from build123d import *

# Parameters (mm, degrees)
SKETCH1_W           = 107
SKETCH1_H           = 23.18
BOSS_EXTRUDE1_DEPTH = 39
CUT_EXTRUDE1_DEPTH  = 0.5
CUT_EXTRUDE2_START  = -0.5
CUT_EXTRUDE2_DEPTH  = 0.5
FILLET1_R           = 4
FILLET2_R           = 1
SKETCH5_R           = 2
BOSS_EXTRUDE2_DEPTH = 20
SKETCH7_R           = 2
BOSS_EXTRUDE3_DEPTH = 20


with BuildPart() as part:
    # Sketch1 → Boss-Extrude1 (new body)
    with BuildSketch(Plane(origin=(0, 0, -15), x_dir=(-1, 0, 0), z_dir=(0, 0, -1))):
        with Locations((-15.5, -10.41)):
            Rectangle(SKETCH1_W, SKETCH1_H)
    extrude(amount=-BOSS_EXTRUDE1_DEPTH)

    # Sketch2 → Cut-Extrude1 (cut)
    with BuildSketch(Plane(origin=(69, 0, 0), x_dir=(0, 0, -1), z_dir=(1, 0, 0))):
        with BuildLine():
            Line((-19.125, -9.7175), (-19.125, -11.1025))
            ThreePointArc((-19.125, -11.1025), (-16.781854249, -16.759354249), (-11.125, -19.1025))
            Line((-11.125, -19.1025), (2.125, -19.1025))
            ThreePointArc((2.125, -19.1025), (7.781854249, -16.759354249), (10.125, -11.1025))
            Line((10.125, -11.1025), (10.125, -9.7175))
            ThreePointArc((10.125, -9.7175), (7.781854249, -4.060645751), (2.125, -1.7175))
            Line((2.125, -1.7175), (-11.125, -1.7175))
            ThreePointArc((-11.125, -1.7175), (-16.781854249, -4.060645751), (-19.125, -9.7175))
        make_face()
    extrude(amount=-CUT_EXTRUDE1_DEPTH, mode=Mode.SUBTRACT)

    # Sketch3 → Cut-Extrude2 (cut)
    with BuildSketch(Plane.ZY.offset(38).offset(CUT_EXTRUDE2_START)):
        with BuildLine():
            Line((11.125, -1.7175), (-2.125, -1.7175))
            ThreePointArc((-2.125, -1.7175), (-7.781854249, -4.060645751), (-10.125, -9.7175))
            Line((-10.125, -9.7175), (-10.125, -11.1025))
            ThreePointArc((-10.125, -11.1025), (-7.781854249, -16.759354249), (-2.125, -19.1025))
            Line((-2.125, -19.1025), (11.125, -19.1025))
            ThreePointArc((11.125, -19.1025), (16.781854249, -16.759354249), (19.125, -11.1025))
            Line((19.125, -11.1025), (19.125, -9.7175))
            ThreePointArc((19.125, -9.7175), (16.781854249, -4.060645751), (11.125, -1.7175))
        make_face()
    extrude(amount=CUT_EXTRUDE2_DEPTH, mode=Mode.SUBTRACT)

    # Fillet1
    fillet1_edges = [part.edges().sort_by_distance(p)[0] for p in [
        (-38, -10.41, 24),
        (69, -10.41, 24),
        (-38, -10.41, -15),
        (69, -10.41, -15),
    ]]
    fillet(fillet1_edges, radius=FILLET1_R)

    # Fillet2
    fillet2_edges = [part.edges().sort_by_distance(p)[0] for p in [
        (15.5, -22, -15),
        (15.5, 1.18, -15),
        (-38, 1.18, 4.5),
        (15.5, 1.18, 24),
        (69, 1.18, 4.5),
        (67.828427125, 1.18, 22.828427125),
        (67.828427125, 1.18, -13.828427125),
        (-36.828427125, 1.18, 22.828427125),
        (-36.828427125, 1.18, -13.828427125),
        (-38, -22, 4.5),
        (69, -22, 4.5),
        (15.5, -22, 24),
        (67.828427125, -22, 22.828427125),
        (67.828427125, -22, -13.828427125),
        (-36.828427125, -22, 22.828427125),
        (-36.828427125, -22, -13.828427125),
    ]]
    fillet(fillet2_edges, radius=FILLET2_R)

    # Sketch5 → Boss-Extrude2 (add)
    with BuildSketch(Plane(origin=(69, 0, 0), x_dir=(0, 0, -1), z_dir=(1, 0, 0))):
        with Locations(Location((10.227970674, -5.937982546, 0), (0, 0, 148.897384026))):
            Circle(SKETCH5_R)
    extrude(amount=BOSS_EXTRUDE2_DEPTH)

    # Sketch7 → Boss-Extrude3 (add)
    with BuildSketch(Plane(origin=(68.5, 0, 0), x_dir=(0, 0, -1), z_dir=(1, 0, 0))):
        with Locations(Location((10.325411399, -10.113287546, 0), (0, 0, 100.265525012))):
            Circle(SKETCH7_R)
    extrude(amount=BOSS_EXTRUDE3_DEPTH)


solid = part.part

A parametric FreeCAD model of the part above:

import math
import FreeCAD as App
import Part
import Sketcher

V = App.Vector


def edges_at(feature, points):
    """Names of the edges that pass closest to the given points."""
    edges = feature.Shape.Edges
    near = lambda p: min(range(len(edges)), key=lambda i: edges[i].distToShape(Part.Vertex(*p))[0])
    return sorted({f"Edge{near(p) + 1}" for p in points})


def add_polygon(sketch, points):
    """Adds a closed chain of lines whose ends are joined by coincident constraints."""
    first, n = sketch.GeometryCount, len(points)
    for a, b in zip(points, points[1:] + points[:1]):
        sketch.addGeometry(Part.LineSegment(App.Vector(*a, 0), App.Vector(*b, 0)), False)
    for i in range(n):
        sketch.addConstraint(Sketcher.Constraint("Coincident", first + i, 2, first + (i + 1) % n, 1))

doc = App.newDocument("Part")
body = doc.addObject("PartDesign::Body", "Body")

sketch1 = body.newObject("Sketcher::SketchObject", "Sketch")
sketch1.AttachmentSupport = (doc.getObject("XY_Plane"), [""])
sketch1.MapMode = "FlatFace"
sketch1.AttachmentOffset = App.Placement(V(0, 0, -15), App.Rotation())
add_polygon(sketch1, [(69, 1), (69, -22), (-38, -22), (-38, 1)])
sketch1.addConstraint([
    Sketcher.Constraint("Vertical", 0),
    Sketcher.Constraint("Horizontal", 1),
    Sketcher.Constraint("Vertical", 2),
    Sketcher.Constraint("Horizontal", 3),
    Sketcher.Constraint("DistanceX", 1, 2, 1, 1, 107.0),
    Sketcher.Constraint("DistanceX", -1, 1, 0, 2, 69.0),
    Sketcher.Constraint("DistanceY", 0, 2, -1, 1, 22.0),
    Sketcher.Constraint("DistanceY", 0, 2, 0, 1, 23.18),
])
pad1 = body.newObject("PartDesign::Pad", "Pad")
pad1.Profile = sketch1
pad1.Length = 39

sketch2 = body.newObject("Sketcher::SketchObject", "Sketch001")
sketch2.AttachmentSupport = (doc.getObject("YZ_Plane"), [""])
sketch2.MapMode = "FlatFace"
sketch2.AttachmentOffset = App.Placement(V(0, 0, 69), App.Rotation())
sketch2.addGeometry([
    Part.LineSegment(V(-9.7, 19.1, 0), V(-11.1, 19.1, 0)),
    Part.ArcOfCircle(Part.Circle(V(-11.1, 11.1, 0), V(0, 0, 1), 8), math.radians(90), math.radians(180)),
    Part.LineSegment(V(-19.1, 11.1, 0), V(-19.1, -2.1, 0)),
    Part.ArcOfCircle(Part.Circle(V(-11.1, -2.1, 0), V(0, 0, 1), 8), math.radians(-180), math.radians(-90)),
    Part.LineSegment(V(-11.1, -10.1, 0), V(-9.7, -10.1, 0)),
    Part.ArcOfCircle(Part.Circle(V(-9.7, -2.1, 0), V(0, 0, 1), 8), math.radians(-90), math.radians(0)),
    Part.LineSegment(V(-1.7, -2.1, 0), V(-1.7, 11.1, 0)),
    Part.ArcOfCircle(Part.Circle(V(-9.7, 11.1, 0), V(0, 0, 1), 8), math.radians(0), math.radians(90)),
], False)
sketch2.addConstraint([
    Sketcher.Constraint("Tangent", 0, 2, 1, 1),
    Sketcher.Constraint("Tangent", 1, 2, 2, 1),
    Sketcher.Constraint("Tangent", 2, 2, 3, 1),
    Sketcher.Constraint("Tangent", 3, 2, 4, 1),
    Sketcher.Constraint("Tangent", 4, 2, 5, 1),
    Sketcher.Constraint("Tangent", 5, 2, 6, 1),
    Sketcher.Constraint("Tangent", 6, 2, 7, 1),
    Sketcher.Constraint("Tangent", 7, 2, 0, 1),
    Sketcher.Constraint("Horizontal", 0),
    Sketcher.Constraint("Vertical", 2),
    Sketcher.Constraint("Horizontal", 4),
    Sketcher.Constraint("Vertical", 6),
    Sketcher.Constraint("Equal", 1, 3),
    Sketcher.Constraint("Equal", 3, 5),
    Sketcher.Constraint("Equal", 5, 7),
    Sketcher.Constraint("Radius", 1, 8.0),
    Sketcher.Constraint("DistanceY", 2, 2, 2, 1, 13.25),
    Sketcher.Constraint("DistanceX", 0, 2, 0, 1, 1.385),
    Sketcher.Constraint("DistanceY", -1, 1, 1, 3, 11.125),
    Sketcher.Constraint("DistanceX", 1, 3, -1, 1, 11.1025),
])
pocket1 = body.newObject("PartDesign::Pocket", "Pocket")
pocket1.Profile = sketch2
pocket1.Length = 0.5

sketch3 = body.newObject("Sketcher::SketchObject", "Sketch002")
sketch3.AttachmentSupport = (doc.getObject("YZ_Plane"), [""])
sketch3.MapMode = "FlatFace"
sketch3.AttachmentOffset = App.Placement(V(0, 0, -37.5), App.Rotation())
sketch3.addGeometry([
    Part.LineSegment(V(-1.7, 11.1, 0), V(-1.7, -2.1, 0)),
    Part.ArcOfCircle(Part.Circle(V(-9.7, -2.1, 0), V(0, 0, 1), 8), math.radians(-90), math.radians(0)),
    Part.LineSegment(V(-9.7, -10.1, 0), V(-11.1, -10.1, 0)),
    Part.ArcOfCircle(Part.Circle(V(-11.1, -2.1, 0), V(0, 0, 1), 8), math.radians(-180), math.radians(-90)),
    Part.LineSegment(V(-19.1, -2.1, 0), V(-19.1, 11.1, 0)),
    Part.ArcOfCircle(Part.Circle(V(-11.1, 11.1, 0), V(0, 0, 1), 8), math.radians(90), math.radians(180)),
    Part.LineSegment(V(-11.1, 19.1, 0), V(-9.7, 19.1, 0)),
    Part.ArcOfCircle(Part.Circle(V(-9.7, 11.1, 0), V(0, 0, 1), 8), math.radians(0), math.radians(90)),
], False)
sketch3.addConstraint([
    Sketcher.Constraint("Tangent", 0, 2, 1, 2),
    Sketcher.Constraint("Tangent", 1, 1, 2, 1),
    Sketcher.Constraint("Tangent", 2, 2, 3, 2),
    Sketcher.Constraint("Tangent", 3, 1, 4, 1),
    Sketcher.Constraint("Tangent", 4, 2, 5, 2),
    Sketcher.Constraint("Tangent", 5, 1, 6, 1),
    Sketcher.Constraint("Tangent", 6, 2, 7, 2),
    Sketcher.Constraint("Tangent", 7, 1, 0, 1),
    Sketcher.Constraint("Vertical", 0),
    Sketcher.Constraint("Horizontal", 2),
    Sketcher.Constraint("Vertical", 4),
    Sketcher.Constraint("Horizontal", 6),
    Sketcher.Constraint("Equal", 1, 3),
    Sketcher.Constraint("Equal", 3, 5),
    Sketcher.Constraint("Equal", 5, 7),
    Sketcher.Constraint("Radius", 1, 8.0),
    Sketcher.Constraint("DistanceY", 0, 2, 0, 1, 13.25),
    Sketcher.Constraint("DistanceX", 2, 2, 2, 1, 1.385),
    Sketcher.Constraint("DistanceY", 1, 3, -1, 1, 2.125),
    Sketcher.Constraint("DistanceX", 1, 3, -1, 1, 9.7175),
])
pocket2 = body.newObject("PartDesign::Pocket", "Pocket001")
pocket2.Profile = sketch3
pocket2.Length = 0.5
doc.recompute()

fillet = body.newObject("PartDesign::Fillet", "Fillet")
fillet.Base = (pocket2, edges_at(pocket2, [
    (-38, -10.41, 24),
    (69, -10.41, 24),
    (-38, -10.41, -15),
    (69, -10.41, -15),
]))
fillet.Radius = 4
doc.recompute()

fillet2 = body.newObject("PartDesign::Fillet", "Fillet001")
fillet2.Base = (fillet, edges_at(fillet, [
    (15.5, -22, -15),
    (15.5, 1.18, -15),
    (-38, 1.18, 4.5),
    (15.5, 1.18, 24),
    (69, 1.18, 4.5),
    (67.828, 1.18, 22.828),
    (67.828, 1.18, -13.828),
    (-36.828, 1.18, 22.828),
    (-36.828, 1.18, -13.828),
    (-38, -22, 4.5),
    (69, -22, 4.5),
    (15.5, -22, 24),
    (67.828, -22, 22.828),
    (67.828, -22, -13.828),
    (-36.828, -22, 22.828),
    (-36.828, -22, -13.828),
]))
fillet2.Radius = 1

sketch4 = body.newObject("Sketcher::SketchObject", "Sketch003")
sketch4.AttachmentSupport = (doc.getObject("YZ_Plane"), [""])
sketch4.MapMode = "FlatFace"
sketch4.AttachmentOffset = App.Placement(V(0, 0, 69), App.Rotation())
sketch4.addGeometry(Part.Circle(V(-5.9, -10.2, 0), V(0, 0, 1), 2), False)
sketch4.addConstraint([
    Sketcher.Constraint("Diameter", 0, 4.0),
    Sketcher.Constraint("DistanceY", 0, 3, -1, 1, 10.227971),
    Sketcher.Constraint("DistanceX", 0, 3, -1, 1, 5.937983),
])
pad2 = body.newObject("PartDesign::Pad", "Pad001")
pad2.Profile = sketch4
pad2.Length = 20

sketch5 = body.newObject("Sketcher::SketchObject", "Sketch004")
sketch5.AttachmentSupport = (doc.getObject("YZ_Plane"), [""])
sketch5.MapMode = "FlatFace"
sketch5.AttachmentOffset = App.Placement(V(0, 0, 68.5), App.Rotation())
sketch5.addGeometry(Part.Circle(V(-10.1, -10.3, 0), V(0, 0, 1), 2), False)
sketch5.addConstraint([
    Sketcher.Constraint("Diameter", 0, 4.0),
    Sketcher.Constraint("DistanceY", 0, 3, -1, 1, 10.325411),
    Sketcher.Constraint("DistanceX", 0, 3, -1, 1, 10.113288),
])
pad3 = body.newObject("PartDesign::Pad", "Pad002")
pad3.Profile = sketch5
pad3.Length = 20

doc.recompute()
